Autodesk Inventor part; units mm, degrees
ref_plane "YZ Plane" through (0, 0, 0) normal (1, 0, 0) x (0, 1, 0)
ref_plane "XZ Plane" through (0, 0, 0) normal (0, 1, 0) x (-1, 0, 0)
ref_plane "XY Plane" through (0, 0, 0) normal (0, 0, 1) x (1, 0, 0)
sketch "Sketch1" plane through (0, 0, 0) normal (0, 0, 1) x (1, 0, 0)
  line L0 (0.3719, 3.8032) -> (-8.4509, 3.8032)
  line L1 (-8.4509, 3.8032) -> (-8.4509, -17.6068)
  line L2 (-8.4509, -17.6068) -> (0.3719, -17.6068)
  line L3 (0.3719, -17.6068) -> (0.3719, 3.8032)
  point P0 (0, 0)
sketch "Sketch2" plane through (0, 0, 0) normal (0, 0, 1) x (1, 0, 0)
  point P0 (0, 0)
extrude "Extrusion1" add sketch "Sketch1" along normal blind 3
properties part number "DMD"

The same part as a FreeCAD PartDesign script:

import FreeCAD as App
import Part
import Sketcher

V = App.Vector

doc = App.newDocument("Part")
params = doc.addObject("Spreadsheet::Sheet", "Params")
for row, (alias, value) in enumerate([
    ("sketch1_height", "21.41 mm"),
    ("pad1_length", "3 mm"),
], start=1):
    params.set(f"A{row}", alias)
    params.set(f"B{row}", "=" + value)
    params.setAlias(f"B{row}", alias)

body = doc.addObject("PartDesign::Body", "Body")

# Sketch on XY plane
sketch1 = body.newObject("Sketcher::SketchObject", "Sketch")
sketch1.AttachmentSupport = (doc.getObject("XY_Plane"), [""])
sketch1.MapMode = "FlatFace"
sketch1.addGeometry([
    Part.LineSegment(V(0, -18, 0), V(0, 4, 0)),
    Part.LineSegment(V(0, 4, 0), V(-8, 4, 0)),
    Part.LineSegment(V(-8, 4, 0), V(-8, -18, 0)),
    Part.LineSegment(V(-8, -18, 0), V(0, -18, 0)),
], False)
sketch1.addConstraint([
    Sketcher.Constraint("Coincident", 0, 2, 1, 1),
    Sketcher.Constraint("Coincident", 1, 2, 2, 1),
    Sketcher.Constraint("Coincident", 2, 2, 3, 1),
    Sketcher.Constraint("Coincident", 3, 2, 0, 1),
    Sketcher.Constraint("Vertical", 0),
    Sketcher.Constraint("Horizontal", 1),
    Sketcher.Constraint("Vertical", 2),
    Sketcher.Constraint("Horizontal", 3),
    Sketcher.Constraint("DistanceY", 0, 1, 0, 2, 21.41),
    Sketcher.Constraint("DistanceX", 1, 2, 1, 1, 8.8228),
    Sketcher.Constraint("DistanceX", -1, 1, 0, 2, 0.372),
    Sketcher.Constraint("DistanceY", -1, 1, 0, 2, 3.8032),
])
sketch1.setExpression("Constraints[8]", "Params.sketch1_height")
pad1 = body.newObject("PartDesign::Pad", "Pad")
pad1.Profile = sketch1
pad1.setExpression("Length", "Params.pad1_length")

doc.recompute()
